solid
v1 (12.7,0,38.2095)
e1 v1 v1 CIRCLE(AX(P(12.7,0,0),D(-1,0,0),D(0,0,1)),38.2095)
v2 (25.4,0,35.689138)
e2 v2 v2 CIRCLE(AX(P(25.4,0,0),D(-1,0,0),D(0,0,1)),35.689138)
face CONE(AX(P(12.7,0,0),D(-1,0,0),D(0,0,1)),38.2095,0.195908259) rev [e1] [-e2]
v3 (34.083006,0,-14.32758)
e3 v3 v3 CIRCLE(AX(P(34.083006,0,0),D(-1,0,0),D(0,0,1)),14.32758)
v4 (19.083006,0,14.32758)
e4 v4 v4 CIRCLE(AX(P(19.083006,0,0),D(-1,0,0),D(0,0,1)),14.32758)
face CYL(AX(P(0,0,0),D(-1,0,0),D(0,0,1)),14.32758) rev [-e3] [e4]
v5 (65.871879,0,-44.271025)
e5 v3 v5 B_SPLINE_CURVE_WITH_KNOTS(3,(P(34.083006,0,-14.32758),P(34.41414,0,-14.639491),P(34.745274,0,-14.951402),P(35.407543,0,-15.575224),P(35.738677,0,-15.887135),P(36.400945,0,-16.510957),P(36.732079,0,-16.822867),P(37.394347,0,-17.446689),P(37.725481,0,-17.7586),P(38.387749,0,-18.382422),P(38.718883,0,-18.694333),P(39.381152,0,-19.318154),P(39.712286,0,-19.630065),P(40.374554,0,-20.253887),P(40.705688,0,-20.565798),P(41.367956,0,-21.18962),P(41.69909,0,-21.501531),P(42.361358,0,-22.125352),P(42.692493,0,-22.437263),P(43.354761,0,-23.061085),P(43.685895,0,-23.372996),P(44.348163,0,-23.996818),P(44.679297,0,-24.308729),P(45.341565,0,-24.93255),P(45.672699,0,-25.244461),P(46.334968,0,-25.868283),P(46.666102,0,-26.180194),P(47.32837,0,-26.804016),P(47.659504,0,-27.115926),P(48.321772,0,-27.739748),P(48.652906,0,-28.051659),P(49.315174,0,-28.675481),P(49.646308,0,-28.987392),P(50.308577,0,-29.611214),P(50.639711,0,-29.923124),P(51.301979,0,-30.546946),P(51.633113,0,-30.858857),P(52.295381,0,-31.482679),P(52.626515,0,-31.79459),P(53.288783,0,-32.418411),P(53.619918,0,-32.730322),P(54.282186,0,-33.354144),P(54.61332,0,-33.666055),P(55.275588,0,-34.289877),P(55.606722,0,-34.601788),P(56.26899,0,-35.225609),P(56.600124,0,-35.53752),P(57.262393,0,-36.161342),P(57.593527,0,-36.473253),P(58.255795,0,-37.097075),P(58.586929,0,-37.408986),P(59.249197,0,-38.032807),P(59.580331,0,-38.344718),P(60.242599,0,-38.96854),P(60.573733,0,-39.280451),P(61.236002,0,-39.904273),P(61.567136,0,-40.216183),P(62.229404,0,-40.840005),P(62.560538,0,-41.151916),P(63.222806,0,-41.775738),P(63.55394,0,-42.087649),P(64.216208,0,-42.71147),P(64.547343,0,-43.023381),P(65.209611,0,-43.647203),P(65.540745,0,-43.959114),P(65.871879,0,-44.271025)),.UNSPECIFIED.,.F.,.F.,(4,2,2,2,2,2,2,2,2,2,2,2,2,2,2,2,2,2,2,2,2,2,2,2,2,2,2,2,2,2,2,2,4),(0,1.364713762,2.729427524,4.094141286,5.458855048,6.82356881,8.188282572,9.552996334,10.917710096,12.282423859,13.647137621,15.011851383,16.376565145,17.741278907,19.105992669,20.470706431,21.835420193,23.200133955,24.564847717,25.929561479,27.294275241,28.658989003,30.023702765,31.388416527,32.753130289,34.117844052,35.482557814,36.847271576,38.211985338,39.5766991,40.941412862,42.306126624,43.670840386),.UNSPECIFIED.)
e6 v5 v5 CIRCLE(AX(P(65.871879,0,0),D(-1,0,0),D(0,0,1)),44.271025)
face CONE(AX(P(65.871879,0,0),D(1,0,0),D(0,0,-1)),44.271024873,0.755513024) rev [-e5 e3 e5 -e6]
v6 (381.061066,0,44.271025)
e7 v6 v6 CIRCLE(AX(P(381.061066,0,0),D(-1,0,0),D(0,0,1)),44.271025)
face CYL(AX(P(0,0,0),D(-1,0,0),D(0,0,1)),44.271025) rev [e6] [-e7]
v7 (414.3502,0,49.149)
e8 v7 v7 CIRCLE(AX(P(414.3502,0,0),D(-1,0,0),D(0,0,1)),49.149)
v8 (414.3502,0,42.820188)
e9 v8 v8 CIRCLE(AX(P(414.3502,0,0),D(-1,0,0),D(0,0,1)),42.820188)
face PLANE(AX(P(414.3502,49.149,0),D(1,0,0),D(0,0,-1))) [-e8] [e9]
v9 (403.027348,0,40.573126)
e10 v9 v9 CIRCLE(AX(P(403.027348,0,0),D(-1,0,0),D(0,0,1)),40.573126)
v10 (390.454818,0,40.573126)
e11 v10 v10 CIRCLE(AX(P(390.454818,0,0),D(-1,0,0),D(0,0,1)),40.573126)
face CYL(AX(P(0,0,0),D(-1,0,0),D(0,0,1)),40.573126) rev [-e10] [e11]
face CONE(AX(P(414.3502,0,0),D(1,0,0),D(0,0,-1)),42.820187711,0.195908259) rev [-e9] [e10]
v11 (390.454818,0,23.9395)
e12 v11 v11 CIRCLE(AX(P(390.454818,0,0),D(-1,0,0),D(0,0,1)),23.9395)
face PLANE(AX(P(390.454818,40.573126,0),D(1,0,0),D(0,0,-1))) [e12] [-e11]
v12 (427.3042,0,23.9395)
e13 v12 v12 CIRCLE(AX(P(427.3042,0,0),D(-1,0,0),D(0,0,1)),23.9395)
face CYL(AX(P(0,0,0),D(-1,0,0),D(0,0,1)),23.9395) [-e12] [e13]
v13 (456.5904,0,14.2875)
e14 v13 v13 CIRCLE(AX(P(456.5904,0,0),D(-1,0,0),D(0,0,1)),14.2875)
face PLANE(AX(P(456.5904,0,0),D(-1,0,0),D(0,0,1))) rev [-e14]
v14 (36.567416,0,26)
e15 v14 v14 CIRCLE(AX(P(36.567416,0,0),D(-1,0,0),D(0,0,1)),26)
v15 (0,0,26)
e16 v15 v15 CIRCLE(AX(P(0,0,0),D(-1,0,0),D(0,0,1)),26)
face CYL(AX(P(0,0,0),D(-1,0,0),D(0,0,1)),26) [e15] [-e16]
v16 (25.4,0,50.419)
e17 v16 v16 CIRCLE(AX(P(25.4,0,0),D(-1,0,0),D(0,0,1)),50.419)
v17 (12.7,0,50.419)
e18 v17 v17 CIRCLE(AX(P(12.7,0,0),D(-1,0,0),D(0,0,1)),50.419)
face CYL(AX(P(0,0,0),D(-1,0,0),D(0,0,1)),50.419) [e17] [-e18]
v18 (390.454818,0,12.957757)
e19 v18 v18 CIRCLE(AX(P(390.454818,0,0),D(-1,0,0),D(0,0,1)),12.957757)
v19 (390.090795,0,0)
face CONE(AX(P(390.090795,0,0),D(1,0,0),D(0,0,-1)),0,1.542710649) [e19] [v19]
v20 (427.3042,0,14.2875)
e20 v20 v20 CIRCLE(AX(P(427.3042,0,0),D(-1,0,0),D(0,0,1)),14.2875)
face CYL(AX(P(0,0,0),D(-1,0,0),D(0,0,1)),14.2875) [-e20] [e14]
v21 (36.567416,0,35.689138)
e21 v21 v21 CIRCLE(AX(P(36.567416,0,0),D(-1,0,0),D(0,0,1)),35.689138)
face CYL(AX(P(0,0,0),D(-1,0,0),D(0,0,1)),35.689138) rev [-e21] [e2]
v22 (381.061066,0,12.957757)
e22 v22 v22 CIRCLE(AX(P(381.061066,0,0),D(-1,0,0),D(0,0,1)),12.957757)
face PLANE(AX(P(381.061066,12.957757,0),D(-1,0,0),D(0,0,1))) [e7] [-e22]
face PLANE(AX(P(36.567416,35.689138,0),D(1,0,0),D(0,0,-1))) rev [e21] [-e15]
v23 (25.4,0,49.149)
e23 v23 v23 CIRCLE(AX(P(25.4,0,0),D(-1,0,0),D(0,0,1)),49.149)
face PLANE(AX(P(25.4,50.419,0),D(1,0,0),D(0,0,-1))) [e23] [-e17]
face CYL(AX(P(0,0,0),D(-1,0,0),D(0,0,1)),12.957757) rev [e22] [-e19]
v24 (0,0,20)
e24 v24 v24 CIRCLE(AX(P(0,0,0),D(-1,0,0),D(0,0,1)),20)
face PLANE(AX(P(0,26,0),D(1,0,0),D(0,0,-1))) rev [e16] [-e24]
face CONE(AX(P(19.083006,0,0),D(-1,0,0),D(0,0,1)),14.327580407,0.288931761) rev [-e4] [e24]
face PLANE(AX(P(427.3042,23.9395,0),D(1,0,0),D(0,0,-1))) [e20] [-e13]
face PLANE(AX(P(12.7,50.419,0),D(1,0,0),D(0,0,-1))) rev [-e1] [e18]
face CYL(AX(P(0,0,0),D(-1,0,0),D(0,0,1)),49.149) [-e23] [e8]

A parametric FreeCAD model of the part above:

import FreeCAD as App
import Part
import Sketcher
Q = App.Units.Quantity

doc = App.newDocument("Part")
body = doc.addObject("PartDesign::Body", "Body")

# Sketch on XY plane
sketch1 = doc.addObject("Sketcher::SketchObject", "Sketch")
body.addObject(sketch1)
sketch1.AttachmentSupport = (doc.XY_Plane, [""])
sketch1.MapMode = "FlatFace"
sketch1.addGeometry(Part.LineSegment(App.Vector(36.6, 26, 0), App.Vector(0, 26, 0)), False)
sketch1.addGeometry(Part.LineSegment(App.Vector(0, 26, 0), App.Vector(0, 0, 0)), False)
sketch1.addGeometry(Part.LineSegment(App.Vector(0, 0, 0), App.Vector(456.6, 0, 0)), False)
sketch1.addGeometry(Part.LineSegment(App.Vector(456.6, 0, 0), App.Vector(456.6, 14.3, 0)), False)
sketch1.addGeometry(Part.LineSegment(App.Vector(456.6, 14.3, 0), App.Vector(427.3, 14.3, 0)), False)
sketch1.addGeometry(Part.LineSegment(App.Vector(427.3, 14.3, 0), App.Vector(427.3, 23.9, 0)), False)
sketch1.addGeometry(Part.LineSegment(App.Vector(427.3, 23.9, 0), App.Vector(390.5, 23.9, 0)), False)
sketch1.addGeometry(Part.LineSegment(App.Vector(390.5, 23.9, 0), App.Vector(390.5, 40.6, 0)), False)
sketch1.addGeometry(Part.LineSegment(App.Vector(390.5, 40.6, 0), App.Vector(403, 40.6, 0)), False)
sketch1.addGeometry(Part.LineSegment(App.Vector(403, 40.6, 0), App.Vector(414.4, 42.8, 0)), False)
sketch1.addGeometry(Part.LineSegment(App.Vector(414.4, 42.8, 0), App.Vector(414.4, 49.1, 0)), False)
sketch1.addGeometry(Part.LineSegment(App.Vector(414.4, 49.1, 0), App.Vector(25.4, 49.1, 0)), False)
sketch1.addGeometry(Part.LineSegment(App.Vector(25.4, 49.1, 0), App.Vector(25.4, 50.4, 0)), False)
sketch1.addGeometry(Part.LineSegment(App.Vector(25.4, 50.4, 0), App.Vector(12.7, 50.4, 0)), False)
sketch1.addGeometry(Part.LineSegment(App.Vector(12.7, 50.4, 0), App.Vector(12.7, 38.2, 0)), False)
sketch1.addGeometry(Part.LineSegment(App.Vector(12.7, 38.2, 0), App.Vector(25.4, 35.7, 0)), False)
sketch1.addGeometry(Part.LineSegment(App.Vector(25.4, 35.7, 0), App.Vector(36.6, 35.7, 0)), False)
sketch1.addGeometry(Part.LineSegment(App.Vector(36.6, 35.7, 0), App.Vector(36.6, 26, 0)), False)
sketch1.addConstraint(Sketcher.Constraint("Coincident", 0, 2, 1, 1))
sketch1.addConstraint(Sketcher.Constraint("Coincident", 1, 2, 2, 1))
sketch1.addConstraint(Sketcher.Constraint("Coincident", 2, 2, 3, 1))
sketch1.addConstraint(Sketcher.Constraint("Coincident", 3, 2, 4, 1))
sketch1.addConstraint(Sketcher.Constraint("Coincident", 4, 2, 5, 1))
sketch1.addConstraint(Sketcher.Constraint("Coincident", 5, 2, 6, 1))
sketch1.addConstraint(Sketcher.Constraint("Coincident", 6, 2, 7, 1))
sketch1.addConstraint(Sketcher.Constraint("Coincident", 7, 2, 8, 1))
sketch1.addConstraint(Sketcher.Constraint("Coincident", 8, 2, 9, 1))
sketch1.addConstraint(Sketcher.Constraint("Coincident", 9, 2, 10, 1))
sketch1.addConstraint(Sketcher.Constraint("Coincident", 10, 2, 11, 1))
sketch1.addConstraint(Sketcher.Constraint("Coincident", 11, 2, 12, 1))
sketch1.addConstraint(Sketcher.Constraint("Coincident", 12, 2, 13, 1))
sketch1.addConstraint(Sketcher.Constraint("Coincident", 13, 2, 14, 1))
sketch1.addConstraint(Sketcher.Constraint("Coincident", 14, 2, 15, 1))
sketch1.addConstraint(Sketcher.Constraint("Coincident", 15, 2, 16, 1))
sketch1.addConstraint(Sketcher.Constraint("Coincident", 16, 2, 17, 1))
sketch1.addConstraint(Sketcher.Constraint("Coincident", 17, 2, 0, 1))
sketch1.addConstraint(Sketcher.Constraint("Horizontal", 0))
sketch1.addConstraint(Sketcher.Constraint("Vertical", 1))
sketch1.addConstraint(Sketcher.Constraint("Horizontal", 2))
sketch1.addConstraint(Sketcher.Constraint("Vertical", 3))
sketch1.addConstraint(Sketcher.Constraint("Horizontal", 4))
sketch1.addConstraint(Sketcher.Constraint("Vertical", 5))
sketch1.addConstraint(Sketcher.Constraint("Horizontal", 6))
sketch1.addConstraint(Sketcher.Constraint("Vertical", 7))
sketch1.addConstraint(Sketcher.Constraint("Horizontal", 8))
sketch1.addConstraint(Sketcher.Constraint("Vertical", 10))
sketch1.addConstraint(Sketcher.Constraint("Horizontal", 11))
sketch1.addConstraint(Sketcher.Constraint("Vertical", 12))
sketch1.addConstraint(Sketcher.Constraint("Horizontal", 13))
sketch1.addConstraint(Sketcher.Constraint("Vertical", 14))
sketch1.addConstraint(Sketcher.Constraint("Horizontal", 16))
sketch1.addConstraint(Sketcher.Constraint("Vertical", 17))
sketch1.addConstraint(Sketcher.Constraint("Coincident", 1, 2, -1, 1))
sketch1.addConstraint(Sketcher.Constraint("Vertical", 12, 2, 15, 2))
sketch1.addConstraint(Sketcher.Constraint("DistanceX", 13, 2, 13, 1, Q("0.5 in")))
sketch1.addConstraint(Sketcher.Constraint("DistanceX", -1, 1, 11, 2, Q("1 in")))
sketch1.addConstraint(Sketcher.Constraint("DistanceY", 5, 1, 5, 2, Q("0.38 in")))
sketch1.addConstraint(Sketcher.Constraint("DistanceY", 12, 1, 12, 2, Q("0.05 in")))
sketch1.addConstraint(Sketcher.Constraint("DistanceX", 2, 1, 2, 2, Q("17.976 in")))
sketch1.addConstraint(Sketcher.Constraint("DistanceX", 4, 2, 4, 1, Q("1.153 in")))
sketch1.addConstraint(Sketcher.Constraint("DistanceX", 11, 2, 11, 1, Q("15.313 in")))
sketch1.addConstraint(Sketcher.Constraint("DistanceY", 3, 1, 3, 2, Q("0.5625 in")))
sketch1.addConstraint(Sketcher.Constraint("DistanceY", -1, 1, 10, 2, Q("1.935 in")))
sketch1.addConstraint(Sketcher.Constraint("DistanceY", 1, 2, 1, 1, Q("26 mm")))
sketch1.addConstraint(Sketcher.Constraint("DistanceY", 14, 2, 14, 1, Q("12.2095 mm")))
sketch1.addConstraint(Sketcher.Constraint("DistanceX", 6, 2, 6, 1, Q("36.849382 mm")))
sketch1.addConstraint(Sketcher.Constraint("DistanceX", 8, 1, 8, 2, Q("12.57253 mm")))
sketch1.addConstraint(Sketcher.Constraint("DistanceY", 17, 2, 17, 1, Q("9.689138 mm")))
sketch1.addConstraint(Sketcher.Constraint("DistanceX", 0, 2, 0, 1, Q("36.567416 mm")))
sketch1.addConstraint(Sketcher.Constraint("DistanceY", 7, 1, 7, 2, Q("16.633626 mm")))
sketch1.addConstraint(Sketcher.Constraint("DistanceY", 10, 1, 10, 2, Q("6.328812 mm")))
revolution = doc.addObject("PartDesign::Revolution", "Revolution")
body.addObject(revolution)
revolution.Profile = sketch1
revolution.ReferenceAxis = (sketch1, ["H_Axis"])
revolution.Angle = 360

# Sketch on XY plane
sketch2 = doc.addObject("Sketcher::SketchObject", "Sketch001")
body.addObject(sketch2)
sketch2.AttachmentSupport = (doc.XY_Plane, [""])
sketch2.MapMode = "FlatFace"
sketch2.addGeometry(Part.LineSegment(App.Vector(0, 20, 0), App.Vector(0, 0, 0)), False)
sketch2.addGeometry(Part.LineSegment(App.Vector(0, 0, 0), App.Vector(390, 0, 0)), False)
sketch2.addGeometry(Part.LineSegment(App.Vector(390, 0, 0), App.Vector(390, 13, 0)), False)
sketch2.addGeometry(Part.LineSegment(App.Vector(390, 13, 0), App.Vector(381, 13, 0)), False)
sketch2.addGeometry(Part.LineSegment(App.Vector(381, 13, 0), App.Vector(381, 44, 0)), False)
sketch2.addGeometry(Part.LineSegment(App.Vector(381, 44, 0), App.Vector(66, 44, 0)), False)
sketch2.addGeometry(Part.LineSegment(App.Vector(66, 44, 0), App.Vector(34, 14, 0)), False)
sketch2.addGeometry(Part.LineSegment(App.Vector(34, 14, 0), App.Vector(19, 14, 0)), False)
sketch2.addGeometry(Part.LineSegment(App.Vector(19, 14, 0), App.Vector(0, 20, 0)), False)
sketch2.addConstraint(Sketcher.Constraint("Coincident", 0, 2, 1, 1))
sketch2.addConstraint(Sketcher.Constraint("Coincident", 1, 2, 2, 1))
sketch2.addConstraint(Sketcher.Constraint("Coincident", 2, 2, 3, 1))
sketch2.addConstraint(Sketcher.Constraint("Coincident", 3, 2, 4, 1))
sketch2.addConstraint(Sketcher.Constraint("Coincident", 4, 2, 5, 1))
sketch2.addConstraint(Sketcher.Constraint("Coincident", 5, 2, 6, 1))
sketch2.addConstraint(Sketcher.Constraint("Coincident", 6, 2, 7, 1))
sketch2.addConstraint(Sketcher.Constraint("Coincident", 7, 2, 8, 1))
sketch2.addConstraint(Sketcher.Constraint("Coincident", 8, 2, 0, 1))
sketch2.addConstraint(Sketcher.Constraint("Vertical", 0))
sketch2.addConstraint(Sketcher.Constraint("Horizontal", 1))
sketch2.addConstraint(Sketcher.Constraint("Horizontal", 3))
sketch2.addConstraint(Sketcher.Constraint("Vertical", 4))
sketch2.addConstraint(Sketcher.Constraint("Horizontal", 5))
sketch2.addConstraint(Sketcher.Constraint("Horizontal", 7))
sketch2.addConstraint(Sketcher.Constraint("Coincident", 0, 2, -1, 1))
sketch2.addConstraint(Sketcher.Constraint("DistanceX", 7, 2, 7, 1, Q("15 mm")))
sketch2.addConstraint(Sketcher.Constraint("DistanceY", 0, 2, 0, 1, Q("20 mm")))
sketch2.addConstraint(Sketcher.Constraint("Distance", 2, Q("12.962869 mm")))
sketch2.addConstraint(Sketcher.Constraint("Distance", 6, Q("43.67084 mm")))
sketch2.addConstraint(Sketcher.Constraint("DistanceX", 1, 1, 1, 2, Q("390.090795 mm")))
sketch2.addConstraint(Sketcher.Constraint("DistanceX", 3, 2, 3, 1, Q("9.393752 mm")))
sketch2.addConstraint(Sketcher.Constraint("DistanceX", 5, 2, 5, 1, Q("315.189187 mm")))
sketch2.addConstraint(Sketcher.Constraint("DistanceY", 4, 1, 4, 2, Q("31.313268 mm")))
sketch2.addConstraint(Sketcher.Constraint("DistanceX", -1, 1, 2, 2, Q("390.454818 mm")))
sketch2.addConstraint(Sketcher.Constraint("DistanceY", -1, 1, 6, 2, Q("14.32758 mm")))
groove = doc.addObject("PartDesign::Groove", "Groove")
body.addObject(groove)
groove.Profile = sketch2
groove.ReferenceAxis = (sketch2, ["H_Axis"])
groove.Angle = 360

doc.recompute()
